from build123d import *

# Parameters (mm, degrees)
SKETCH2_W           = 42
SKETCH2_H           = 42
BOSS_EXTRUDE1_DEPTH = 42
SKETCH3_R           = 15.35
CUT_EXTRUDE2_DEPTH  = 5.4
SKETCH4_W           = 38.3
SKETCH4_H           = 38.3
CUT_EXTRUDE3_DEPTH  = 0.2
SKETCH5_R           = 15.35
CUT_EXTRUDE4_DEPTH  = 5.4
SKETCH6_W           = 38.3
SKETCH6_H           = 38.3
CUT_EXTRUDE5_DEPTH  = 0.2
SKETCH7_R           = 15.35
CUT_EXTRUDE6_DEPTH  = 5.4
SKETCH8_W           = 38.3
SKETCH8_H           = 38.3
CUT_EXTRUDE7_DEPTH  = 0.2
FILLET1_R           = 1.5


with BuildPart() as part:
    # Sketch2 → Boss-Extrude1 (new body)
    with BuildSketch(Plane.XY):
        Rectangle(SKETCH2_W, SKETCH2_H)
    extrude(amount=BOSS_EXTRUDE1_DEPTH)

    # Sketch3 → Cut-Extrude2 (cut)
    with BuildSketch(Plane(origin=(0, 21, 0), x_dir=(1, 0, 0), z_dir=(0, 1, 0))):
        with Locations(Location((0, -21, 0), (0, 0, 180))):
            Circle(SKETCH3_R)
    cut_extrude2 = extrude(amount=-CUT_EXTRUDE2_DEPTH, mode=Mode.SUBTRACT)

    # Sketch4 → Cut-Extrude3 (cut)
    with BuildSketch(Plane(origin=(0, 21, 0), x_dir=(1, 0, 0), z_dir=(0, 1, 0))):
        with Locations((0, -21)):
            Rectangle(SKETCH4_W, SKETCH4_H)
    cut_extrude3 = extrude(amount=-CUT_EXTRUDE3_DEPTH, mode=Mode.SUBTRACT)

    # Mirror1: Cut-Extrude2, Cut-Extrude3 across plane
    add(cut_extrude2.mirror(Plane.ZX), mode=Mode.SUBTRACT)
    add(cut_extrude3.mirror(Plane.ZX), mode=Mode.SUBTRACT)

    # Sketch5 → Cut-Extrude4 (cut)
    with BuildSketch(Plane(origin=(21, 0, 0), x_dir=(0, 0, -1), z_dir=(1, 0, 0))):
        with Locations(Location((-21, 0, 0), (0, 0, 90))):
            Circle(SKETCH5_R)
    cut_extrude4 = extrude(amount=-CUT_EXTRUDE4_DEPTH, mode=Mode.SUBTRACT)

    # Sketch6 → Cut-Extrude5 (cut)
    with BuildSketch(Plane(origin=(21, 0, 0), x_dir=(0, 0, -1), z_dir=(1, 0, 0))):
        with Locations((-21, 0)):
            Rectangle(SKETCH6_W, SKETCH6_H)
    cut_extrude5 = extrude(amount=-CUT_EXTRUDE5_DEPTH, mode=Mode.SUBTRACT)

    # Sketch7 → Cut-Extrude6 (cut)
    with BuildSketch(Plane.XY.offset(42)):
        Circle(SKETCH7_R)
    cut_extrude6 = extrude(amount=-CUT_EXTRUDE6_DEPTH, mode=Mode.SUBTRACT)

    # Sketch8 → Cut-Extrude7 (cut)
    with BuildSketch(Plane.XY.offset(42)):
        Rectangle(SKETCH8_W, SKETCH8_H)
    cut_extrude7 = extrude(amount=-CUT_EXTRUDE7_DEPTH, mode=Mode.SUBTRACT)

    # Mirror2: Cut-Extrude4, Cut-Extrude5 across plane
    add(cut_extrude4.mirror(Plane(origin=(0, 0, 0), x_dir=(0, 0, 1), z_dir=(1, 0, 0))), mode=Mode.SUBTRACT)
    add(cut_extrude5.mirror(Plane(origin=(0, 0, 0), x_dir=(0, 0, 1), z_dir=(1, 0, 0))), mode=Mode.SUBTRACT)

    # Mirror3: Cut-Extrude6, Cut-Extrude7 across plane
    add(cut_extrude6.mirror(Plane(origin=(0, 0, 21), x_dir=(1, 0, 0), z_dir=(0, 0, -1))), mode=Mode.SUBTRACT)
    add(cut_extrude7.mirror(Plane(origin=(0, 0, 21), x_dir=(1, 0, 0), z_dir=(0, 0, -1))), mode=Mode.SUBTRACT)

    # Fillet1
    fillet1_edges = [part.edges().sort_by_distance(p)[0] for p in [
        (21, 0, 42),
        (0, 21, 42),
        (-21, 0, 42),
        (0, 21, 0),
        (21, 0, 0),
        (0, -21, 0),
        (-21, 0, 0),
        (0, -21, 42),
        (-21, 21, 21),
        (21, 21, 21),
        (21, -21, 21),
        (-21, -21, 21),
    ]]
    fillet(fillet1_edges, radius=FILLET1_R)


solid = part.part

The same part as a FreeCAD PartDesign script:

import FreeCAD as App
import Part
import Sketcher

V = App.Vector
Q = App.Units.Quantity


def edges_at(feature, points):
    """Names of the edges that pass closest to the given points."""
    edges = feature.Shape.Edges
    near = lambda p: min(range(len(edges)), key=lambda i: edges[i].distToShape(Part.Vertex(*p))[0])
    return sorted({f"Edge{near(p) + 1}" for p in points})


def add_polygon(sketch, points):
    """Adds a closed chain of lines whose ends are joined by coincident constraints."""
    first, n = sketch.GeometryCount, len(points)
    for a, b in zip(points, points[1:] + points[:1]):
        sketch.addGeometry(Part.LineSegment(App.Vector(*a, 0), App.Vector(*b, 0)), False)
    for i in range(n):
        sketch.addConstraint(Sketcher.Constraint("Coincident", first + i, 2, first + (i + 1) % n, 1))

doc = App.newDocument("Part")
body = doc.addObject("PartDesign::Body", "Body")

# Sketch on XY plane
sketch1 = doc.addObject("Sketcher::SketchObject", "Sketch")
body.addObject(sketch1)
sketch1.AttachmentSupport = (doc.XY_Plane, [""])
sketch1.MapMode = "FlatFace"
add_polygon(sketch1, [(-21, 21), (-21, -21), (21, -21), (21, 21)])  # lines 0-3
sketch1.addConstraint([
    Sketcher.Constraint("Vertical", 0),
    Sketcher.Constraint("Horizontal", 1),
    Sketcher.Constraint("Vertical", 2),
    Sketcher.Constraint("Horizontal", 3),
    Sketcher.Constraint("Symmetric", 0, 2, 2, 2, -1, 1),
    Sketcher.Constraint("Equal", 3, 0),
    Sketcher.Constraint("DistanceX", 1, 1, 1, 2, Q("42 mm")),
])
pad1 = doc.addObject("PartDesign::Pad", "Pad")
body.addObject(pad1)
pad1.Profile = sketch1
pad1.Length = 42

# Sketch on XZ plane
sketch2 = doc.addObject("Sketcher::SketchObject", "Sketch001")
body.addObject(sketch2)
sketch2.AttachmentSupport = (doc.XZ_Plane, [""])
sketch2.MapMode = "FlatFace"
sketch2.AttachmentOffset = App.Placement(V(0, 0, -21), App.Rotation())
sketch2.addGeometry(Part.Circle(V(0, 21, 0), V(0, 0, 1), 15.35), False)
sketch2.addConstraint([
    Sketcher.Constraint("PointOnObject", 0, 3, -2),
    Sketcher.Constraint("Diameter", 0, Q("30.7 mm")),
    Sketcher.Constraint("DistanceY", -1, 1, 0, 3, Q("21 mm")),
])
pocket1 = doc.addObject("PartDesign::Pocket", "Pocket")
body.addObject(pocket1)
pocket1.Profile = sketch2
pocket1.Length = 5.4
pocket1.Reversed = True

# Sketch on XZ plane
sketch3 = doc.addObject("Sketcher::SketchObject", "Sketch002")
body.addObject(sketch3)
sketch3.AttachmentSupport = (doc.XZ_Plane, [""])
sketch3.MapMode = "FlatFace"
sketch3.AttachmentOffset = App.Placement(V(0, 0, -21), App.Rotation())
add_polygon(sketch3, [(-19.15, 1.85), (-19.15, 40.15), (19.15, 40.15), (19.15, 1.85)])  # lines 0-3
sketch3.addConstraint([
    Sketcher.Constraint("Vertical", 0),
    Sketcher.Constraint("Horizontal", 1),
    Sketcher.Constraint("Vertical", 2),
    Sketcher.Constraint("Horizontal", 3),
    Sketcher.Constraint("Equal", 3, 0),
    Sketcher.Constraint("DistanceX", 1, 1, 1, 2, Q("38.3 mm")),
    Sketcher.Constraint("DistanceX", 0, 2, -1, 1, Q("19.15 mm")),
    Sketcher.Constraint("DistanceY", -1, 1, 0, 2, Q("40.15 mm")),
])
pocket2 = doc.addObject("PartDesign::Pocket", "Pocket001")
body.addObject(pocket2)
pocket2.Profile = sketch3
pocket2.Length = 0.2
pocket2.Reversed = True
doc.recompute()

mirrored = doc.addObject("PartDesign::Mirrored", "Mirrored")
body.addObject(mirrored)
mirrored.Originals = [pocket1, pocket2]
mirrored.MirrorPlane = (doc.XZ_Plane, [""])
body.Tip = mirrored

# Sketch on YZ plane
sketch4 = doc.addObject("Sketcher::SketchObject", "Sketch003")
body.addObject(sketch4)
sketch4.AttachmentSupport = (doc.YZ_Plane, [""])
sketch4.MapMode = "FlatFace"
sketch4.AttachmentOffset = App.Placement(V(0, 0, 21), App.Rotation())
sketch4.addGeometry(Part.Circle(V(0, 21, 0), V(0, 0, 1), 15.35), False)
sketch4.addConstraint([
    Sketcher.Constraint("PointOnObject", 0, 3, -2),
    Sketcher.Constraint("Diameter", 0, Q("30.7 mm")),
    Sketcher.Constraint("DistanceY", -1, 1, 0, 3, Q("21 mm")),
])
pocket3 = doc.addObject("PartDesign::Pocket", "Pocket002")
body.addObject(pocket3)
pocket3.Profile = sketch4
pocket3.Length = 5.4

# Sketch on YZ plane
sketch5 = doc.addObject("Sketcher::SketchObject", "Sketch004")
body.addObject(sketch5)
sketch5.AttachmentSupport = (doc.YZ_Plane, [""])
sketch5.MapMode = "FlatFace"
sketch5.AttachmentOffset = App.Placement(V(0, 0, 21), App.Rotation())
add_polygon(sketch5, [(19.15, 40.15), (-19.15, 40.15), (-19.15, 1.85), (19.15, 1.85)])  # lines 0-3
sketch5.addConstraint([
    Sketcher.Constraint("Horizontal", 0),
    Sketcher.Constraint("Vertical", 1),
    Sketcher.Constraint("Horizontal", 2),
    Sketcher.Constraint("Vertical", 3),
    Sketcher.Constraint("Equal", 2, 1),
    Sketcher.Constraint("DistanceX", 0, 2, 0, 1, Q("38.3 mm")),
    Sketcher.Constraint("DistanceX", 0, 2, -1, 1, Q("19.15 mm")),
    Sketcher.Constraint("DistanceY", -1, 1, 0, 2, Q("40.15 mm")),
])
pocket4 = doc.addObject("PartDesign::Pocket", "Pocket003")
body.addObject(pocket4)
pocket4.Profile = sketch5
pocket4.Length = 0.2

# Sketch on XY plane
sketch6 = doc.addObject("Sketcher::SketchObject", "Sketch005")
body.addObject(sketch6)
sketch6.AttachmentSupport = (doc.XY_Plane, [""])
sketch6.MapMode = "FlatFace"
sketch6.AttachmentOffset = App.Placement(V(0, 0, 42), App.Rotation())
sketch6.addGeometry(Part.Circle(V(0, 0, 0), V(0, 0, 1), 15.35), False)
sketch6.addConstraint([
    Sketcher.Constraint("Coincident", 0, 3, -1, 1),
    Sketcher.Constraint("Diameter", 0, Q("30.7 mm")),
])
pocket5 = doc.addObject("PartDesign::Pocket", "Pocket004")
body.addObject(pocket5)
pocket5.Profile = sketch6
pocket5.Length = 5.4

# Sketch on XY plane
sketch7 = doc.addObject("Sketcher::SketchObject", "Sketch006")
body.addObject(sketch7)
sketch7.AttachmentSupport = (doc.XY_Plane, [""])
sketch7.MapMode = "FlatFace"
sketch7.AttachmentOffset = App.Placement(V(0, 0, 42), App.Rotation())
add_polygon(sketch7, [(-19.15, 19.15), (-19.15, -19.15), (19.15, -19.15), (19.15, 19.15)])  # lines 0-3
sketch7.addConstraint([
    Sketcher.Constraint("Vertical", 0),
    Sketcher.Constraint("Horizontal", 1),
    Sketcher.Constraint("Vertical", 2),
    Sketcher.Constraint("Horizontal", 3),
    Sketcher.Constraint("Symmetric", 0, 2, 2, 2, -1, 1),
    Sketcher.Constraint("Equal", 3, 0),
    Sketcher.Constraint("DistanceX", 1, 1, 1, 2, Q("38.3 mm")),
])
pocket6 = doc.addObject("PartDesign::Pocket", "Pocket005")
body.addObject(pocket6)
pocket6.Profile = sketch7
pocket6.Length = 0.2
doc.recompute()

mirrored2 = doc.addObject("PartDesign::Mirrored", "Mirrored001")
body.addObject(mirrored2)
mirrored2.Originals = [pocket3, pocket4]
mirrored2.MirrorPlane = (doc.YZ_Plane, [""])
body.Tip = mirrored2
doc.recompute()

datumplane = doc.addObject("PartDesign::Plane", "DatumPlane")
body.addObject(datumplane)
datumplane.AttachmentSupport = (doc.XY_Plane, [""])
datumplane.MapMode = "FlatFace"
datumplane.AttachmentOffset = App.Placement(V(0, 0, 21), App.Rotation())
mirrored3 = doc.addObject("PartDesign::Mirrored", "Mirrored002")
body.addObject(mirrored3)
mirrored3.Originals = [pocket5, pocket6]
mirrored3.MirrorPlane = (datumplane, [""])
body.Tip = mirrored3
doc.recompute()

fillet = doc.addObject("PartDesign::Fillet", "Fillet")
body.addObject(fillet)
fillet.Base = (mirrored3, edges_at(mirrored3, [
    (21, 0, 42),
    (0, 21, 42),
    (-21, 0, 42),
    (0, 21, 0),
    (21, 0, 0),
    (0, -21, 0),
    (-21, 0, 0),
    (0, -21, 42),
    (-21, 21, 21),
    (21, 21, 21),
    (21, -21, 21),
    (-21, -21, 21),
]))
fillet.Radius = 1.5

doc.recompute()
